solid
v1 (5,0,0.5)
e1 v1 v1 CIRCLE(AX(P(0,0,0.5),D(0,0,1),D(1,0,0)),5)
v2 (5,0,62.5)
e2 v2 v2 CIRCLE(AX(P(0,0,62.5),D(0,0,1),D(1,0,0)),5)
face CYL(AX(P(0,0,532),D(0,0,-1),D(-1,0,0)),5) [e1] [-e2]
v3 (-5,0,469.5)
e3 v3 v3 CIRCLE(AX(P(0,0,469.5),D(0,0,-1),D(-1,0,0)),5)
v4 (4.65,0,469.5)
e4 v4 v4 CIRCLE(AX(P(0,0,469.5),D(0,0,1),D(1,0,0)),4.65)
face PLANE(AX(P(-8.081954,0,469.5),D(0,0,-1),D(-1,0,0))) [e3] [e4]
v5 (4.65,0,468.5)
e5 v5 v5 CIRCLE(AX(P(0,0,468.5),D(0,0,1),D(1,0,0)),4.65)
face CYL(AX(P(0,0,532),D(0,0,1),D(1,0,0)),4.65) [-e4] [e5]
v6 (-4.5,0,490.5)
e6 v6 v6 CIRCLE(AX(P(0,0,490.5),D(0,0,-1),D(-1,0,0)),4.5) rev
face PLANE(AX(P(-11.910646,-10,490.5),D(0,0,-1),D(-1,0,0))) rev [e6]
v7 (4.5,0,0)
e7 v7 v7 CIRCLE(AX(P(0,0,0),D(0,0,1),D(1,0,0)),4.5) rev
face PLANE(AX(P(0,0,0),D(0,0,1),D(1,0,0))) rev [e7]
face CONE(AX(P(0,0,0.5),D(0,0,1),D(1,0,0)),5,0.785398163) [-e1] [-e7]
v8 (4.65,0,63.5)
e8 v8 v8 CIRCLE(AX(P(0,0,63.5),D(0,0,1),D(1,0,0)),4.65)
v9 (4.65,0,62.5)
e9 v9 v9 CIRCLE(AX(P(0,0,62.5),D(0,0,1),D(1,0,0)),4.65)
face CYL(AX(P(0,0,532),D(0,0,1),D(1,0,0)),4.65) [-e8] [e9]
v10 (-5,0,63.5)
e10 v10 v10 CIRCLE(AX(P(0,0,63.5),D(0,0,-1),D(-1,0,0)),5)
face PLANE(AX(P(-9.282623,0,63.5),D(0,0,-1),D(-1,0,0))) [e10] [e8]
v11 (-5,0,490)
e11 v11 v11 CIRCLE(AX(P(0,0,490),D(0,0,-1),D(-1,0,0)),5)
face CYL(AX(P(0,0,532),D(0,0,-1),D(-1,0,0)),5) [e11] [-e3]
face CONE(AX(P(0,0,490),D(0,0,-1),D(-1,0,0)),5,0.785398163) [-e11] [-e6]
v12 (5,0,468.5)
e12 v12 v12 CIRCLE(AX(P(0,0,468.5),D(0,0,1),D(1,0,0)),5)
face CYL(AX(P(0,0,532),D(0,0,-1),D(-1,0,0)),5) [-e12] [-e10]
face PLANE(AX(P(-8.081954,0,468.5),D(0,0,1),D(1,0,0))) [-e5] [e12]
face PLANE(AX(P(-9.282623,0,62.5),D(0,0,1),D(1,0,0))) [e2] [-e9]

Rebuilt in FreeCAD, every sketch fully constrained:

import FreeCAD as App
import Part
import Sketcher
Q = App.Units.Quantity


def edges_at(feature, points):
    """Names of the edges that pass closest to the given points."""
    edges = feature.Shape.Edges
    near = lambda p: min(range(len(edges)), key=lambda i: edges[i].distToShape(Part.Vertex(*p))[0])
    return sorted({f"Edge{near(p) + 1}" for p in points})

doc = App.newDocument("Part")
body = doc.addObject("PartDesign::Body", "Body")

# Sketch on XY plane
sketch1 = body.newObject("Sketcher::SketchObject", "Sketch")
sketch1.AttachmentSupport = (doc.getObject("XY_Plane"), [""])
sketch1.MapMode = "FlatFace"
sketch1.addGeometry(Part.Circle(App.Vector(0, 0, 0), App.Vector(0, 0, 1), 5), False)
sketch1.addConstraint(Sketcher.Constraint("Coincident", 0, 3, -1, 1))
sketch1.addConstraint(Sketcher.Constraint("Diameter", 0, Q("10 mm")))
pad1 = body.newObject("PartDesign::Pad", "Pad")
pad1.Profile = sketch1
pad1.Length = 532

# Sketch on XZ plane
sketch2 = body.newObject("Sketcher::SketchObject", "Sketch001")
sketch2.AttachmentSupport = (doc.getObject("XZ_Plane"), [""])
sketch2.MapMode = "FlatFace"
sketch2.addGeometry(Part.LineSegment(App.Vector(-8.1, 468.5, 0), App.Vector(-8.1, 469.5, 0)), False)
sketch2.addGeometry(Part.LineSegment(App.Vector(-8.1, 469.5, 0), App.Vector(-4.7, 469.5, 0)), False)
sketch2.addGeometry(Part.LineSegment(App.Vector(-4.7, 469.5, 0), App.Vector(-4.7, 468.5, 0)), False)
sketch2.addGeometry(Part.LineSegment(App.Vector(-4.7, 468.5, 0), App.Vector(-8.1, 468.5, 0)), False)
sketch2.addGeometry(Part.LineSegment(App.Vector(-9.3, 62.5, 0), App.Vector(-9.3, 63.5, 0)), False)
sketch2.addGeometry(Part.LineSegment(App.Vector(-9.3, 63.5, 0), App.Vector(-4.7, 63.5, 0)), False)
sketch2.addGeometry(Part.LineSegment(App.Vector(-4.7, 63.5, 0), App.Vector(-4.7, 62.5, 0)), False)
sketch2.addGeometry(Part.LineSegment(App.Vector(-4.7, 62.5, 0), App.Vector(-9.3, 62.5, 0)), False)
sketch2.addConstraint(Sketcher.Constraint("Coincident", 0, 2, 1, 1))
sketch2.addConstraint(Sketcher.Constraint("Coincident", 1, 2, 2, 1))
sketch2.addConstraint(Sketcher.Constraint("Coincident", 2, 2, 3, 1))
sketch2.addConstraint(Sketcher.Constraint("Coincident", 3, 2, 0, 1))
sketch2.addConstraint(Sketcher.Constraint("Coincident", 4, 2, 5, 1))
sketch2.addConstraint(Sketcher.Constraint("Coincident", 5, 2, 6, 1))
sketch2.addConstraint(Sketcher.Constraint("Coincident", 6, 2, 7, 1))
sketch2.addConstraint(Sketcher.Constraint("Coincident", 7, 2, 4, 1))
sketch2.addConstraint(Sketcher.Constraint("Vertical", 0))
sketch2.addConstraint(Sketcher.Constraint("Horizontal", 1))
sketch2.addConstraint(Sketcher.Constraint("Vertical", 2))
sketch2.addConstraint(Sketcher.Constraint("Horizontal", 3))
sketch2.addConstraint(Sketcher.Constraint("Vertical", 4))
sketch2.addConstraint(Sketcher.Constraint("Horizontal", 5))
sketch2.addConstraint(Sketcher.Constraint("Vertical", 6))
sketch2.addConstraint(Sketcher.Constraint("Horizontal", 7))
sketch2.addConstraint(Sketcher.Constraint("Vertical", 2, 2, 5, 2))
sketch2.addConstraint(Sketcher.Constraint("Equal", 2, 4))
sketch2.addConstraint(Sketcher.Constraint("DistanceY", 0, 1, 0, 2, Q("1 mm")))
sketch2.addConstraint(Sketcher.Constraint("DistanceY", 4, 2, 3, 2, Q("405 mm")))
sketch2.addConstraint(Sketcher.Constraint("DistanceY", -1, 1, 0, 2, Q("469.5 mm")))
sketch2.addConstraint(Sketcher.Constraint("DistanceX", 1, 2, -1, 1, Q("4.65 mm")))
sketch2.addConstraint(Sketcher.Constraint("DistanceX", 1, 1, 1, 2, Q("3.431954 mm")))
sketch2.addConstraint(Sketcher.Constraint("DistanceX", 5, 1, 5, 2, Q("4.632623 mm")))
groove = body.newObject("PartDesign::Groove", "Groove")
groove.Profile = sketch2
groove.ReferenceAxis = (sketch2, ["V_Axis"])
groove.Angle = 360
doc.recompute()

chamfer = body.newObject("PartDesign::Chamfer", "Chamfer")
chamfer.Base = (groove, edges_at(groove, [(-5, 0, 0), (-5, 0, 532)]))
chamfer.Size = 0.5

# Sketch on XZ plane
sketch3 = body.newObject("Sketcher::SketchObject", "Sketch002")
sketch3.AttachmentSupport = (doc.getObject("XZ_Plane"), [""])
sketch3.MapMode = "FlatFace"
sketch3.addGeometry(Part.LineSegment(App.Vector(-12, 490, 0), App.Vector(-12, 550, 0)), False)
sketch3.addGeometry(Part.LineSegment(App.Vector(-12, 550, 0), App.Vector(27, 550, 0)), False)
sketch3.addGeometry(Part.LineSegment(App.Vector(27, 550, 0), App.Vector(27, 490, 0)), False)
sketch3.addGeometry(Part.LineSegment(App.Vector(27, 490, 0), App.Vector(-12, 490, 0)), False)
sketch3.addConstraint(Sketcher.Constraint("Coincident", 0, 2, 1, 1))
sketch3.addConstraint(Sketcher.Constraint("Coincident", 1, 2, 2, 1))
sketch3.addConstraint(Sketcher.Constraint("Coincident", 2, 2, 3, 1))
sketch3.addConstraint(Sketcher.Constraint("Coincident", 3, 2, 0, 1))
sketch3.addConstraint(Sketcher.Constraint("Vertical", 0))
sketch3.addConstraint(Sketcher.Constraint("Horizontal", 1))
sketch3.addConstraint(Sketcher.Constraint("Vertical", 2))
sketch3.addConstraint(Sketcher.Constraint("Horizontal", 3))
sketch3.addConstraint(Sketcher.Constraint("DistanceY", -1, 1, 2, 2, Q("490.5 mm")))
sketch3.addConstraint(Sketcher.Constraint("DistanceX", 1, 1, 1, 2, Q("38.697286 mm")))
sketch3.addConstraint(Sketcher.Constraint("DistanceY", 0, 1, 0, 2, Q("59.202018 mm")))
sketch3.addConstraint(Sketcher.Constraint("DistanceX", -1, 1, 1, 2, Q("26.78664 mm")))
pocket1 = body.newObject("PartDesign::Pocket", "Pocket")
pocket1.Profile = sketch3
pocket1.Length = 20
pocket1.Midplane = True
doc.recompute()

chamfer2 = body.newObject("PartDesign::Chamfer", "Chamfer001")
chamfer2.Base = (pocket1, edges_at(pocket1, [(-5, 0, 490.5)]))
chamfer2.Size = 0.5

doc.recompute()
